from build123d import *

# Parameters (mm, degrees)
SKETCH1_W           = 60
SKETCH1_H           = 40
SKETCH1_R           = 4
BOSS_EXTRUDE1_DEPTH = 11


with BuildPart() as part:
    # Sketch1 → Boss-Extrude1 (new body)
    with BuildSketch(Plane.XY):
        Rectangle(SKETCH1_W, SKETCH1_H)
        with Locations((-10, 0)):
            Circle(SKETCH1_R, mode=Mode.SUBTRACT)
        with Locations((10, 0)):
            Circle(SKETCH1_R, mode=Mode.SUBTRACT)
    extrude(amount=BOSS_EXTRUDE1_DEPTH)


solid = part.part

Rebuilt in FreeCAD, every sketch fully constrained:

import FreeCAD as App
import Part
import Sketcher


def add_polygon(sketch, points):
    """Adds a closed chain of lines whose ends are joined by coincident constraints."""
    first, n = sketch.GeometryCount, len(points)
    for a, b in zip(points, points[1:] + points[:1]):
        sketch.addGeometry(Part.LineSegment(App.Vector(*a, 0), App.Vector(*b, 0)), False)
    for i in range(n):
        sketch.addConstraint(Sketcher.Constraint("Coincident", first + i, 2, first + (i + 1) % n, 1))

doc = App.newDocument("Part")
body = doc.addObject("PartDesign::Body", "Body")

# Sketch on XY plane
sketch1 = body.newObject("Sketcher::SketchObject", "Sketch")
sketch1.AttachmentSupport = (doc.getObject("XY_Plane"), [""])
sketch1.MapMode = "FlatFace"
add_polygon(sketch1, [(-30, 20), (-30, -20), (30, -20), (30, 20)])  # lines 0-3
sketch1.addGeometry(Part.Circle(App.Vector(-10, 0, 0), App.Vector(0, 0, 1), 4), False)  # 4
sketch1.addGeometry(Part.Circle(App.Vector(10, 0, 0), App.Vector(0, 0, 1), 4), False)  # 5
sketch1.addConstraint([
    Sketcher.Constraint("Vertical", 0),
    Sketcher.Constraint("Horizontal", 1),
    Sketcher.Constraint("Vertical", 2),
    Sketcher.Constraint("Horizontal", 3),
    Sketcher.Constraint("Equal", 4, 5),
    Sketcher.Constraint("Symmetric", 4, 3, 5, 3, -1, 1),
    Sketcher.Constraint("Symmetric", 0, 2, 2, 2, -1, 1),
    Sketcher.Constraint("PointOnObject", 4, 3, -1),
    Sketcher.Constraint("Diameter", 4, 8.0),
    Sketcher.Constraint("DistanceX", 1, 1, 1, 2, 60.0),
    Sketcher.Constraint("DistanceY", 0, 2, 0, 1, 40.0),
    Sketcher.Constraint("DistanceX", 4, 3, -1, 1, 10.0),
])
pad1 = body.newObject("PartDesign::Pad", "Pad")
pad1.Profile = sketch1
pad1.Length = 11

doc.recompute()
